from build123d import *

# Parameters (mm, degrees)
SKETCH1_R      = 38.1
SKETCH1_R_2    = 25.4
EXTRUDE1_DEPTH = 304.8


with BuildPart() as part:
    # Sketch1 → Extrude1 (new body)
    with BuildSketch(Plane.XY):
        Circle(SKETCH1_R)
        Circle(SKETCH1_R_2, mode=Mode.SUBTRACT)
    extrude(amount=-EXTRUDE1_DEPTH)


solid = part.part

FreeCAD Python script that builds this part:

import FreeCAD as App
import Part
import Sketcher

V = App.Vector
Q = App.Units.Quantity

doc = App.newDocument("Part")
body = doc.addObject("PartDesign::Body", "Body")

sketch1 = body.newObject("Sketcher::SketchObject", "Sketch")
sketch1.AttachmentSupport = (doc.getObject("XY_Plane"), [""])
sketch1.MapMode = "FlatFace"
sketch1.addGeometry(Part.Circle(V(0, 0, 0), V(0, 0, 1), 38.1), False)
sketch1.addGeometry(Part.Circle(V(0, 0, 0), V(0, 0, 1), 25.4), False)
sketch1.addConstraint(Sketcher.Constraint("Coincident", 0, 3, -1, 1))
sketch1.addConstraint(Sketcher.Constraint("Coincident", 1, 3, -1, 1))
sketch1.addConstraint(Sketcher.Constraint("Diameter", 0, Q("3 in")))
sketch1.addConstraint(Sketcher.Constraint("Diameter", 1, Q("2 in")))
pad1 = body.newObject("PartDesign::Pad", "Pad")
pad1.Profile = sketch1
pad1.Length = Q("12 in")
pad1.Reversed = True

doc.recompute()
